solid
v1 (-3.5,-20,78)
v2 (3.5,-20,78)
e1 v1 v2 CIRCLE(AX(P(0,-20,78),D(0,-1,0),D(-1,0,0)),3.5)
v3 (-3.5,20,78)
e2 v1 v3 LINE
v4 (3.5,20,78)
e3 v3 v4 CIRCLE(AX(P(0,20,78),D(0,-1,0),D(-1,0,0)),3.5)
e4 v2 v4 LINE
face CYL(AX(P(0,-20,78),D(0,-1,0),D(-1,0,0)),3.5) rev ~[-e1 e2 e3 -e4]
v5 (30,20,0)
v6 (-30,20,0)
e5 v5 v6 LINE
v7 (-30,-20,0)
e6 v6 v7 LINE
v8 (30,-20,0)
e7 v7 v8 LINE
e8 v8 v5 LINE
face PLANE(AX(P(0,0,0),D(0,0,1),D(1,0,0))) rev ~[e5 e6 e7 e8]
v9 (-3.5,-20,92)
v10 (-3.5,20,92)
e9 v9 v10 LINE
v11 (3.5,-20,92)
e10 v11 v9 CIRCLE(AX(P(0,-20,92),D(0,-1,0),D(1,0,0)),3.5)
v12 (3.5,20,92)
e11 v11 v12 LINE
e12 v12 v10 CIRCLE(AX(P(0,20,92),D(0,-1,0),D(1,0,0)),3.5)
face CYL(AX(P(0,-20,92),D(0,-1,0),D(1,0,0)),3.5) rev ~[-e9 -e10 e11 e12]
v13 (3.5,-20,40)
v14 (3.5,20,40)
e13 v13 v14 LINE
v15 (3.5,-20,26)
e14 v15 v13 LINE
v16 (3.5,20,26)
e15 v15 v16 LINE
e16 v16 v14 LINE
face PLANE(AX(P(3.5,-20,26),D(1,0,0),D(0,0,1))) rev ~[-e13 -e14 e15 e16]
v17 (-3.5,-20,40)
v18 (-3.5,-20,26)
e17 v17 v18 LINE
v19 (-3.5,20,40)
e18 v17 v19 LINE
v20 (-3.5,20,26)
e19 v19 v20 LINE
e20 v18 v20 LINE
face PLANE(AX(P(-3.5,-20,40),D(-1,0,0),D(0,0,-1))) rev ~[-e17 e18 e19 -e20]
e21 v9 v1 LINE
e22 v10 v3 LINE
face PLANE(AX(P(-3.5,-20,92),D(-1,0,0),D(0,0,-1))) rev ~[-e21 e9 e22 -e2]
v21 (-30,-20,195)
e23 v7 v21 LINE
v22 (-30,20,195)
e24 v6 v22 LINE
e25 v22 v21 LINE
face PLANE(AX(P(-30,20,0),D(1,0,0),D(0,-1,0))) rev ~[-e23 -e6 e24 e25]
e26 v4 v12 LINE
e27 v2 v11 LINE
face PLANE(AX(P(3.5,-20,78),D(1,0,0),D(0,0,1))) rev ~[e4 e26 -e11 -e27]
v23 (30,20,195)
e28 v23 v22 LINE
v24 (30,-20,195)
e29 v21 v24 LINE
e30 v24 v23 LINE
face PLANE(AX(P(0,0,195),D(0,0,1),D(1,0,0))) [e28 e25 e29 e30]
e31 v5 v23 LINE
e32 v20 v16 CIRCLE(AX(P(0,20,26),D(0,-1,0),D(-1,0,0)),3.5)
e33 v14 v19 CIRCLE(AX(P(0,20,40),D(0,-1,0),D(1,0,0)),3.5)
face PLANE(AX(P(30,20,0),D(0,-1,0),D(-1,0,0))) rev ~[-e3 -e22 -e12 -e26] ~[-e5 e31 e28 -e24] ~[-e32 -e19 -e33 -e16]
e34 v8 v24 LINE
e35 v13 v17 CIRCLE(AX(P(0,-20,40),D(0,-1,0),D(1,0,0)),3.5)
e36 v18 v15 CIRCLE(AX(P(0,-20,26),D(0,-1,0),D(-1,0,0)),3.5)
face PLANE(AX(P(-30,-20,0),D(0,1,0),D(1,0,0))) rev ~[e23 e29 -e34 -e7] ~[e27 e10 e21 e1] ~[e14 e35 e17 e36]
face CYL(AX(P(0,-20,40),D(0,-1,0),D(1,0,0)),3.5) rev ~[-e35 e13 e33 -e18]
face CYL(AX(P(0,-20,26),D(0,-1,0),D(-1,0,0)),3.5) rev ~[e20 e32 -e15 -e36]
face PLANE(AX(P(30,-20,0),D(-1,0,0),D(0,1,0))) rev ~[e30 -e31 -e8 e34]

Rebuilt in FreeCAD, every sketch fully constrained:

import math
import FreeCAD as App
import Part
import Sketcher
from FreeCAD import Vector
Q = App.Units.Quantity


def add_polygon(sketch, points):
    """Adds a closed chain of lines whose ends are joined by coincident constraints."""
    first, n = sketch.GeometryCount, len(points)
    for a, b in zip(points, points[1:] + points[:1]):
        sketch.addGeometry(Part.LineSegment(App.Vector(*a, 0), App.Vector(*b, 0)), False)
    for i in range(n):
        sketch.addConstraint(Sketcher.Constraint("Coincident", first + i, 2, first + (i + 1) % n, 1))

doc = App.newDocument("Part")
body = doc.addObject("PartDesign::Body", "Body")

sketch1 = body.newObject("Sketcher::SketchObject", "Sketch")
sketch1.AttachmentSupport = (doc.getObject("XY_Plane"), [""])
sketch1.MapMode = "FlatFace"
add_polygon(sketch1, [(30, -20), (30, 20), (-30, 20), (-30, -20)])
sketch1.addConstraint([
    Sketcher.Constraint("Vertical", 0),
    Sketcher.Constraint("Horizontal", 1),
    Sketcher.Constraint("Vertical", 2),
    Sketcher.Constraint("Horizontal", 3),
    Sketcher.Constraint("Symmetric", 0, 2, 2, 2, -1, 1),
    Sketcher.Constraint("DistanceX", 1, 2, 1, 1, Q("60 mm")),
    Sketcher.Constraint("DistanceY", 0, 1, 0, 2, Q("40 mm")),
])
pad1 = body.newObject("PartDesign::Pad", "Pad")
pad1.Profile = sketch1
pad1.Length = 195

sketch2 = body.newObject("Sketcher::SketchObject", "Sketch001")
sketch2.AttachmentSupport = (doc.getObject("XZ_Plane"), [""])
sketch2.MapMode = "FlatFace"
sketch2.AttachmentOffset = App.Placement(Vector(0, 0, 20), App.Rotation())
sketch2.addGeometry([
    Part.ArcOfCircle(Part.Circle(Vector(0, 40, 0), Vector(0, 0, 1), 3.5), math.radians(0), math.radians(180)),
    Part.LineSegment(Vector(-3.5, 40, 0), Vector(-3.5, 26, 0)),
    Part.ArcOfCircle(Part.Circle(Vector(0, 26, 0), Vector(0, 0, 1), 3.5), math.radians(180), math.radians(360)),
    Part.LineSegment(Vector(3.5, 26, 0), Vector(3.5, 40, 0)),
    Part.ArcOfCircle(Part.Circle(Vector(0, 92, 0), Vector(0, 0, 1), 3.5), math.radians(0), math.radians(180)),
    Part.LineSegment(Vector(-3.5, 92, 0), Vector(-3.5, 78, 0)),
    Part.ArcOfCircle(Part.Circle(Vector(0, 78, 0), Vector(0, 0, 1), 3.5), math.radians(180), math.radians(360)),
    Part.LineSegment(Vector(3.5, 78, 0), Vector(3.5, 92, 0)),
], False)
sketch2.addConstraint([
    Sketcher.Constraint("Tangent", 0, 2, 1, 1),
    Sketcher.Constraint("Tangent", 1, 2, 2, 1),
    Sketcher.Constraint("Tangent", 2, 2, 3, 1),
    Sketcher.Constraint("Tangent", 3, 2, 0, 1),
    Sketcher.Constraint("Tangent", 4, 2, 5, 1),
    Sketcher.Constraint("Tangent", 5, 2, 6, 1),
    Sketcher.Constraint("Tangent", 6, 2, 7, 1),
    Sketcher.Constraint("Tangent", 7, 2, 4, 1),
    Sketcher.Constraint("Vertical", 1),
    Sketcher.Constraint("Vertical", 3),
    Sketcher.Constraint("Vertical", 5),
    Sketcher.Constraint("Vertical", 7),
    Sketcher.Constraint("Equal", 2, 4),
    Sketcher.Constraint("PointOnObject", 0, 3, -2),
    Sketcher.Constraint("PointOnObject", 4, 3, -2),
    Sketcher.Constraint("Equal", 3, 5),
    Sketcher.Constraint("Radius", 0, Q("3.5 mm")),
    Sketcher.Constraint("DistanceY", 1, 2, 1, 1, Q("14 mm")),
    Sketcher.Constraint("DistanceY", -1, 1, 0, 3, Q("40 mm")),
    Sketcher.Constraint("DistanceY", -1, 1, 4, 3, Q("92 mm")),
])
pocket1 = body.newObject("PartDesign::Pocket", "Pocket")
pocket1.Profile = sketch2
pocket1.Length = 40

doc.recompute()
